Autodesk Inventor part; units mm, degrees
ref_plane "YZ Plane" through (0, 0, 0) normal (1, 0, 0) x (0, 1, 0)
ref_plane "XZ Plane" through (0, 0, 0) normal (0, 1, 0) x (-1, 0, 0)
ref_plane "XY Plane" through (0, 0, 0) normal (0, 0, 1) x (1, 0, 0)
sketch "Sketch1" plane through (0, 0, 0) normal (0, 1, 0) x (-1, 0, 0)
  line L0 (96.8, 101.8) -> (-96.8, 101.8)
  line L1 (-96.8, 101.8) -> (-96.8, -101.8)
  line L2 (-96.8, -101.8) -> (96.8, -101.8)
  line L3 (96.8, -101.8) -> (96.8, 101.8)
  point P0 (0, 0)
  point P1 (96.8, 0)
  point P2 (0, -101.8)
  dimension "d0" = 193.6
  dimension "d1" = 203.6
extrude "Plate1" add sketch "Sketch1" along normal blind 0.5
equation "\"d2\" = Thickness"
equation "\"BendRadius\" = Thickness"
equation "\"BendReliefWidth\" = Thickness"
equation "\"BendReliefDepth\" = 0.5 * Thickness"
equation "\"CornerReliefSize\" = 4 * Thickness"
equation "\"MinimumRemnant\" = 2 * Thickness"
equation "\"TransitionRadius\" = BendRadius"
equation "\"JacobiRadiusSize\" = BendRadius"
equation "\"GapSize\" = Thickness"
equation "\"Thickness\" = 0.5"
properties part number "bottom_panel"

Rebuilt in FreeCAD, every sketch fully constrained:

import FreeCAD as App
import Part
import Sketcher


def add_polygon(sketch, points):
    """Adds a closed chain of lines whose ends are joined by coincident constraints."""
    first, n = sketch.GeometryCount, len(points)
    for a, b in zip(points, points[1:] + points[:1]):
        sketch.addGeometry(Part.LineSegment(App.Vector(*a, 0), App.Vector(*b, 0)), False)
    for i in range(n):
        sketch.addConstraint(Sketcher.Constraint("Coincident", first + i, 2, first + (i + 1) % n, 1))

doc = App.newDocument("Part")
params = doc.addObject("Spreadsheet::Sheet", "Params")
for row, (alias, value) in enumerate([
    ("sketch1_width", "193.6 mm"),
    ("sketch1_height", "203.6 mm"),
    ("pad1_length", "0.5 mm"),
], start=1):
    params.set(f"A{row}", alias)
    params.set(f"B{row}", "=" + value)
    params.setAlias(f"B{row}", alias)

body = doc.addObject("PartDesign::Body", "Body")

# Sketch on XZ plane
sketch1 = body.newObject("Sketcher::SketchObject", "Sketch")
sketch1.AttachmentSupport = (doc.getObject("XZ_Plane"), [""])
sketch1.MapMode = "FlatFace"
add_polygon(sketch1, [(-96.8, -101.8), (-96.8, 101.8), (96.8, 101.8), (96.8, -101.8)])  # lines 0-3
sketch1.addConstraint([
    Sketcher.Constraint("Vertical", 0),
    Sketcher.Constraint("Horizontal", 1),
    Sketcher.Constraint("Vertical", 2),
    Sketcher.Constraint("Horizontal", 3),
    Sketcher.Constraint("Symmetric", 0, 2, 2, 2, -1, 1),
    Sketcher.Constraint("DistanceX", 1, 1, 1, 2, 193.6),
    Sketcher.Constraint("DistanceY", 0, 1, 0, 2, 203.6),
])
sketch1.setExpression("Constraints[9]", "Params.sketch1_width")
sketch1.setExpression("Constraints[10]", "Params.sketch1_height")
pad1 = body.newObject("PartDesign::Pad", "Pad")
pad1.Profile = sketch1
pad1.setExpression("Length", "Params.pad1_length")
pad1.Reversed = True

doc.recompute()
